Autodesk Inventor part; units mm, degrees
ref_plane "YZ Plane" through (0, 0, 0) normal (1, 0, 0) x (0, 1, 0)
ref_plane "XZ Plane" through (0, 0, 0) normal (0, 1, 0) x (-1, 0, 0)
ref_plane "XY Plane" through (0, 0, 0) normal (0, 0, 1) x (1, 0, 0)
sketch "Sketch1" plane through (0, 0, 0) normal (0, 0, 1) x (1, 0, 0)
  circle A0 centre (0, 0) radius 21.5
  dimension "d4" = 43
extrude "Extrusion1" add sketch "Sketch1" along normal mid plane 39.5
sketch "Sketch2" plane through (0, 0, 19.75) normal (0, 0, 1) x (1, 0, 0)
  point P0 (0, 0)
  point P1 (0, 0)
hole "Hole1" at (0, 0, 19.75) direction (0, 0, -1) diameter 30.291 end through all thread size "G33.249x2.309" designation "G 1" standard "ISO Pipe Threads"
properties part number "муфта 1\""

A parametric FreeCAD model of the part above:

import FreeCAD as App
import Part
import Sketcher

V = App.Vector
Q = App.Units.Quantity

doc = App.newDocument("Part")
body = doc.addObject("PartDesign::Body", "Body")

sketch1 = body.newObject("Sketcher::SketchObject", "Sketch")
sketch1.AttachmentSupport = (doc.getObject("XY_Plane"), [""])
sketch1.MapMode = "FlatFace"
sketch1.addGeometry(Part.Circle(V(0, 0, 0), V(0, 0, 1), 22), False)
sketch1.addConstraint(Sketcher.Constraint("Coincident", 0, 3, -1, 1))
sketch1.addConstraint(Sketcher.Constraint("Diameter", 0, Q("43 mm")))
pad1 = body.newObject("PartDesign::Pad", "Pad")
pad1.Profile = sketch1
pad1.Length = 39.5
pad1.Midplane = True

sketch2 = body.newObject("Sketcher::SketchObject", "Sketch001")
sketch2.AttachmentSupport = (doc.getObject("XY_Plane"), [""])
sketch2.MapMode = "FlatFace"
sketch2.AttachmentOffset = App.Placement(V(0, 0, 19.75), App.Rotation())
sketch2.addGeometry(Part.Circle(V(0, 0, 0), V(0, 0, 1), 15), False)
sketch2.addConstraint(Sketcher.Constraint("Coincident", 0, 3, -1, 1))
sketch2.addConstraint(Sketcher.Constraint("Diameter", 0, Q("30.291 mm")))
doc.recompute()
hole = body.newObject("PartDesign::Hole", "Hole")
hole.Profile = sketch2
hole.ThreadType = "None"
hole.Diameter = 30.291
hole.DepthType = "ThroughAll"

doc.recompute()
